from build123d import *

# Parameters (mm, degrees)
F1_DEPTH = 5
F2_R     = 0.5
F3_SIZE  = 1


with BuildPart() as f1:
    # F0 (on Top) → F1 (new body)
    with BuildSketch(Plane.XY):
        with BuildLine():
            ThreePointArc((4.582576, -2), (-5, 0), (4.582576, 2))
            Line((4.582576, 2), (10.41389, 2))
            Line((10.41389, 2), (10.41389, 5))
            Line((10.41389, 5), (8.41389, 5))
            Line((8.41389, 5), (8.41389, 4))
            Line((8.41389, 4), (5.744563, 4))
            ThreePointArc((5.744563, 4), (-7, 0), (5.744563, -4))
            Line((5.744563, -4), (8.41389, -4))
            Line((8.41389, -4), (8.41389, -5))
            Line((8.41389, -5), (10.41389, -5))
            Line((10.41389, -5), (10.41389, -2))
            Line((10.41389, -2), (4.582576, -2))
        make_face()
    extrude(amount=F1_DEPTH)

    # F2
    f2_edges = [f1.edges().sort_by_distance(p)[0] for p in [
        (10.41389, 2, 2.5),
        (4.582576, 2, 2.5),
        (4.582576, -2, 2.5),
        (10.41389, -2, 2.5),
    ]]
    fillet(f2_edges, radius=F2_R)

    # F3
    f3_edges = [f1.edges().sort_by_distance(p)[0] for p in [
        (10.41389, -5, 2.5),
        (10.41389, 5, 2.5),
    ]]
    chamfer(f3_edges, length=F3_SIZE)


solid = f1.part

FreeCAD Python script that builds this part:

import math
import FreeCAD as App
import Part
import Sketcher
from FreeCAD import Vector
Q = App.Units.Quantity


def edges_at(feature, points):
    """Names of the edges that pass closest to the given points."""
    edges = feature.Shape.Edges
    near = lambda p: min(range(len(edges)), key=lambda i: edges[i].distToShape(Part.Vertex(*p))[0])
    return sorted({f"Edge{near(p) + 1}" for p in points})

doc = App.newDocument("Part")
body = doc.addObject("PartDesign::Body", "Body")

# Sketch on XY plane
sketch1 = body.newObject("Sketcher::SketchObject", "Sketch")
sketch1.AttachmentSupport = (doc.getObject("XY_Plane"), [""])
sketch1.MapMode = "FlatFace"
sketch1.addGeometry(Part.ArcOfCircle(Part.Circle(Vector(0, 0, 0), Vector(0, 0, 1), 5), math.radians(24), math.radians(336)), False)
sketch1.addGeometry(Part.LineSegment(Vector(4.6, 2, 0), Vector(10.4, 2, 0)), False)
sketch1.addGeometry(Part.LineSegment(Vector(10.4, 2, 0), Vector(10.4, 5, 0)), False)
sketch1.addGeometry(Part.LineSegment(Vector(10.4, 5, 0), Vector(8.4, 5, 0)), False)
sketch1.addGeometry(Part.LineSegment(Vector(8.4, 5, 0), Vector(8.4, 4, 0)), False)
sketch1.addGeometry(Part.LineSegment(Vector(8.4, 4, 0), Vector(5.7, 4, 0)), False)
sketch1.addGeometry(Part.ArcOfCircle(Part.Circle(Vector(0, 0, 0), Vector(0, 0, 1), 7), math.radians(35), math.radians(325)), False)
sketch1.addGeometry(Part.LineSegment(Vector(5.7, -4, 0), Vector(8.4, -4, 0)), False)
sketch1.addGeometry(Part.LineSegment(Vector(8.4, -4, 0), Vector(8.4, -5, 0)), False)
sketch1.addGeometry(Part.LineSegment(Vector(8.4, -5, 0), Vector(10.4, -5, 0)), False)
sketch1.addGeometry(Part.LineSegment(Vector(10.4, -5, 0), Vector(10.4, -2, 0)), False)
sketch1.addGeometry(Part.LineSegment(Vector(10.4, -2, 0), Vector(4.6, -2, 0)), False)
sketch1.addConstraint(Sketcher.Constraint("Coincident", 0, 1, 1, 1))
sketch1.addConstraint(Sketcher.Constraint("Coincident", 1, 2, 2, 1))
sketch1.addConstraint(Sketcher.Constraint("Coincident", 2, 2, 3, 1))
sketch1.addConstraint(Sketcher.Constraint("Coincident", 3, 2, 4, 1))
sketch1.addConstraint(Sketcher.Constraint("Coincident", 4, 2, 5, 1))
sketch1.addConstraint(Sketcher.Constraint("Coincident", 5, 2, 6, 1))
sketch1.addConstraint(Sketcher.Constraint("Coincident", 6, 2, 7, 1))
sketch1.addConstraint(Sketcher.Constraint("Coincident", 7, 2, 8, 1))
sketch1.addConstraint(Sketcher.Constraint("Coincident", 8, 2, 9, 1))
sketch1.addConstraint(Sketcher.Constraint("Coincident", 9, 2, 10, 1))
sketch1.addConstraint(Sketcher.Constraint("Coincident", 10, 2, 11, 1))
sketch1.addConstraint(Sketcher.Constraint("Coincident", 11, 2, 0, 2))
sketch1.addConstraint(Sketcher.Constraint("Horizontal", 1))
sketch1.addConstraint(Sketcher.Constraint("Vertical", 2))
sketch1.addConstraint(Sketcher.Constraint("Horizontal", 3))
sketch1.addConstraint(Sketcher.Constraint("Vertical", 4))
sketch1.addConstraint(Sketcher.Constraint("Horizontal", 5))
sketch1.addConstraint(Sketcher.Constraint("Horizontal", 7))
sketch1.addConstraint(Sketcher.Constraint("Vertical", 8))
sketch1.addConstraint(Sketcher.Constraint("Horizontal", 9))
sketch1.addConstraint(Sketcher.Constraint("Vertical", 10))
sketch1.addConstraint(Sketcher.Constraint("Horizontal", 11))
sketch1.addConstraint(Sketcher.Constraint("Coincident", 0, 3, -1, 1))
sketch1.addConstraint(Sketcher.Constraint("Coincident", 6, 3, -1, 1))
sketch1.addConstraint(Sketcher.Constraint("Symmetric", 4, 2, 7, 2, -1))
sketch1.addConstraint(Sketcher.Constraint("Symmetric", 2, 2, 9, 2, -1))
sketch1.addConstraint(Sketcher.Constraint("Vertical", 0, 1, 11, 2))
sketch1.addConstraint(Sketcher.Constraint("Radius", 0, Q("5 mm")))
sketch1.addConstraint(Sketcher.Constraint("Radius", 6, Q("7 mm")))
sketch1.addConstraint(Sketcher.Constraint("DistanceX", 3, 2, 3, 1, Q("2 mm")))
sketch1.addConstraint(Sketcher.Constraint("DistanceY", 2, 1, 2, 2, Q("3 mm")))
sketch1.addConstraint(Sketcher.Constraint("DistanceY", 4, 2, 4, 1, Q("1 mm")))
sketch1.addConstraint(Sketcher.Constraint("DistanceY", -1, 1, 0, 1, Q("2 mm")))
sketch1.addConstraint(Sketcher.Constraint("DistanceX", 1, 1, 1, 2, Q("5.831314 mm")))
pad1 = body.newObject("PartDesign::Pad", "Pad")
pad1.Profile = sketch1
pad1.Length = 5
doc.recompute()

fillet = body.newObject("PartDesign::Fillet", "Fillet")
fillet.Base = (pad1, edges_at(pad1, [
    (10.414, 2, 2.5),
    (4.583, 2, 2.5),
    (4.583, -2, 2.5),
    (10.414, -2, 2.5),
]))
fillet.Radius = 0.5
doc.recompute()

chamfer = body.newObject("PartDesign::Chamfer", "Chamfer")
chamfer.Base = (fillet, edges_at(fillet, [(10.414, -5, 2.5), (10.414, 5, 2.5)]))
chamfer.Size = 1

doc.recompute()
